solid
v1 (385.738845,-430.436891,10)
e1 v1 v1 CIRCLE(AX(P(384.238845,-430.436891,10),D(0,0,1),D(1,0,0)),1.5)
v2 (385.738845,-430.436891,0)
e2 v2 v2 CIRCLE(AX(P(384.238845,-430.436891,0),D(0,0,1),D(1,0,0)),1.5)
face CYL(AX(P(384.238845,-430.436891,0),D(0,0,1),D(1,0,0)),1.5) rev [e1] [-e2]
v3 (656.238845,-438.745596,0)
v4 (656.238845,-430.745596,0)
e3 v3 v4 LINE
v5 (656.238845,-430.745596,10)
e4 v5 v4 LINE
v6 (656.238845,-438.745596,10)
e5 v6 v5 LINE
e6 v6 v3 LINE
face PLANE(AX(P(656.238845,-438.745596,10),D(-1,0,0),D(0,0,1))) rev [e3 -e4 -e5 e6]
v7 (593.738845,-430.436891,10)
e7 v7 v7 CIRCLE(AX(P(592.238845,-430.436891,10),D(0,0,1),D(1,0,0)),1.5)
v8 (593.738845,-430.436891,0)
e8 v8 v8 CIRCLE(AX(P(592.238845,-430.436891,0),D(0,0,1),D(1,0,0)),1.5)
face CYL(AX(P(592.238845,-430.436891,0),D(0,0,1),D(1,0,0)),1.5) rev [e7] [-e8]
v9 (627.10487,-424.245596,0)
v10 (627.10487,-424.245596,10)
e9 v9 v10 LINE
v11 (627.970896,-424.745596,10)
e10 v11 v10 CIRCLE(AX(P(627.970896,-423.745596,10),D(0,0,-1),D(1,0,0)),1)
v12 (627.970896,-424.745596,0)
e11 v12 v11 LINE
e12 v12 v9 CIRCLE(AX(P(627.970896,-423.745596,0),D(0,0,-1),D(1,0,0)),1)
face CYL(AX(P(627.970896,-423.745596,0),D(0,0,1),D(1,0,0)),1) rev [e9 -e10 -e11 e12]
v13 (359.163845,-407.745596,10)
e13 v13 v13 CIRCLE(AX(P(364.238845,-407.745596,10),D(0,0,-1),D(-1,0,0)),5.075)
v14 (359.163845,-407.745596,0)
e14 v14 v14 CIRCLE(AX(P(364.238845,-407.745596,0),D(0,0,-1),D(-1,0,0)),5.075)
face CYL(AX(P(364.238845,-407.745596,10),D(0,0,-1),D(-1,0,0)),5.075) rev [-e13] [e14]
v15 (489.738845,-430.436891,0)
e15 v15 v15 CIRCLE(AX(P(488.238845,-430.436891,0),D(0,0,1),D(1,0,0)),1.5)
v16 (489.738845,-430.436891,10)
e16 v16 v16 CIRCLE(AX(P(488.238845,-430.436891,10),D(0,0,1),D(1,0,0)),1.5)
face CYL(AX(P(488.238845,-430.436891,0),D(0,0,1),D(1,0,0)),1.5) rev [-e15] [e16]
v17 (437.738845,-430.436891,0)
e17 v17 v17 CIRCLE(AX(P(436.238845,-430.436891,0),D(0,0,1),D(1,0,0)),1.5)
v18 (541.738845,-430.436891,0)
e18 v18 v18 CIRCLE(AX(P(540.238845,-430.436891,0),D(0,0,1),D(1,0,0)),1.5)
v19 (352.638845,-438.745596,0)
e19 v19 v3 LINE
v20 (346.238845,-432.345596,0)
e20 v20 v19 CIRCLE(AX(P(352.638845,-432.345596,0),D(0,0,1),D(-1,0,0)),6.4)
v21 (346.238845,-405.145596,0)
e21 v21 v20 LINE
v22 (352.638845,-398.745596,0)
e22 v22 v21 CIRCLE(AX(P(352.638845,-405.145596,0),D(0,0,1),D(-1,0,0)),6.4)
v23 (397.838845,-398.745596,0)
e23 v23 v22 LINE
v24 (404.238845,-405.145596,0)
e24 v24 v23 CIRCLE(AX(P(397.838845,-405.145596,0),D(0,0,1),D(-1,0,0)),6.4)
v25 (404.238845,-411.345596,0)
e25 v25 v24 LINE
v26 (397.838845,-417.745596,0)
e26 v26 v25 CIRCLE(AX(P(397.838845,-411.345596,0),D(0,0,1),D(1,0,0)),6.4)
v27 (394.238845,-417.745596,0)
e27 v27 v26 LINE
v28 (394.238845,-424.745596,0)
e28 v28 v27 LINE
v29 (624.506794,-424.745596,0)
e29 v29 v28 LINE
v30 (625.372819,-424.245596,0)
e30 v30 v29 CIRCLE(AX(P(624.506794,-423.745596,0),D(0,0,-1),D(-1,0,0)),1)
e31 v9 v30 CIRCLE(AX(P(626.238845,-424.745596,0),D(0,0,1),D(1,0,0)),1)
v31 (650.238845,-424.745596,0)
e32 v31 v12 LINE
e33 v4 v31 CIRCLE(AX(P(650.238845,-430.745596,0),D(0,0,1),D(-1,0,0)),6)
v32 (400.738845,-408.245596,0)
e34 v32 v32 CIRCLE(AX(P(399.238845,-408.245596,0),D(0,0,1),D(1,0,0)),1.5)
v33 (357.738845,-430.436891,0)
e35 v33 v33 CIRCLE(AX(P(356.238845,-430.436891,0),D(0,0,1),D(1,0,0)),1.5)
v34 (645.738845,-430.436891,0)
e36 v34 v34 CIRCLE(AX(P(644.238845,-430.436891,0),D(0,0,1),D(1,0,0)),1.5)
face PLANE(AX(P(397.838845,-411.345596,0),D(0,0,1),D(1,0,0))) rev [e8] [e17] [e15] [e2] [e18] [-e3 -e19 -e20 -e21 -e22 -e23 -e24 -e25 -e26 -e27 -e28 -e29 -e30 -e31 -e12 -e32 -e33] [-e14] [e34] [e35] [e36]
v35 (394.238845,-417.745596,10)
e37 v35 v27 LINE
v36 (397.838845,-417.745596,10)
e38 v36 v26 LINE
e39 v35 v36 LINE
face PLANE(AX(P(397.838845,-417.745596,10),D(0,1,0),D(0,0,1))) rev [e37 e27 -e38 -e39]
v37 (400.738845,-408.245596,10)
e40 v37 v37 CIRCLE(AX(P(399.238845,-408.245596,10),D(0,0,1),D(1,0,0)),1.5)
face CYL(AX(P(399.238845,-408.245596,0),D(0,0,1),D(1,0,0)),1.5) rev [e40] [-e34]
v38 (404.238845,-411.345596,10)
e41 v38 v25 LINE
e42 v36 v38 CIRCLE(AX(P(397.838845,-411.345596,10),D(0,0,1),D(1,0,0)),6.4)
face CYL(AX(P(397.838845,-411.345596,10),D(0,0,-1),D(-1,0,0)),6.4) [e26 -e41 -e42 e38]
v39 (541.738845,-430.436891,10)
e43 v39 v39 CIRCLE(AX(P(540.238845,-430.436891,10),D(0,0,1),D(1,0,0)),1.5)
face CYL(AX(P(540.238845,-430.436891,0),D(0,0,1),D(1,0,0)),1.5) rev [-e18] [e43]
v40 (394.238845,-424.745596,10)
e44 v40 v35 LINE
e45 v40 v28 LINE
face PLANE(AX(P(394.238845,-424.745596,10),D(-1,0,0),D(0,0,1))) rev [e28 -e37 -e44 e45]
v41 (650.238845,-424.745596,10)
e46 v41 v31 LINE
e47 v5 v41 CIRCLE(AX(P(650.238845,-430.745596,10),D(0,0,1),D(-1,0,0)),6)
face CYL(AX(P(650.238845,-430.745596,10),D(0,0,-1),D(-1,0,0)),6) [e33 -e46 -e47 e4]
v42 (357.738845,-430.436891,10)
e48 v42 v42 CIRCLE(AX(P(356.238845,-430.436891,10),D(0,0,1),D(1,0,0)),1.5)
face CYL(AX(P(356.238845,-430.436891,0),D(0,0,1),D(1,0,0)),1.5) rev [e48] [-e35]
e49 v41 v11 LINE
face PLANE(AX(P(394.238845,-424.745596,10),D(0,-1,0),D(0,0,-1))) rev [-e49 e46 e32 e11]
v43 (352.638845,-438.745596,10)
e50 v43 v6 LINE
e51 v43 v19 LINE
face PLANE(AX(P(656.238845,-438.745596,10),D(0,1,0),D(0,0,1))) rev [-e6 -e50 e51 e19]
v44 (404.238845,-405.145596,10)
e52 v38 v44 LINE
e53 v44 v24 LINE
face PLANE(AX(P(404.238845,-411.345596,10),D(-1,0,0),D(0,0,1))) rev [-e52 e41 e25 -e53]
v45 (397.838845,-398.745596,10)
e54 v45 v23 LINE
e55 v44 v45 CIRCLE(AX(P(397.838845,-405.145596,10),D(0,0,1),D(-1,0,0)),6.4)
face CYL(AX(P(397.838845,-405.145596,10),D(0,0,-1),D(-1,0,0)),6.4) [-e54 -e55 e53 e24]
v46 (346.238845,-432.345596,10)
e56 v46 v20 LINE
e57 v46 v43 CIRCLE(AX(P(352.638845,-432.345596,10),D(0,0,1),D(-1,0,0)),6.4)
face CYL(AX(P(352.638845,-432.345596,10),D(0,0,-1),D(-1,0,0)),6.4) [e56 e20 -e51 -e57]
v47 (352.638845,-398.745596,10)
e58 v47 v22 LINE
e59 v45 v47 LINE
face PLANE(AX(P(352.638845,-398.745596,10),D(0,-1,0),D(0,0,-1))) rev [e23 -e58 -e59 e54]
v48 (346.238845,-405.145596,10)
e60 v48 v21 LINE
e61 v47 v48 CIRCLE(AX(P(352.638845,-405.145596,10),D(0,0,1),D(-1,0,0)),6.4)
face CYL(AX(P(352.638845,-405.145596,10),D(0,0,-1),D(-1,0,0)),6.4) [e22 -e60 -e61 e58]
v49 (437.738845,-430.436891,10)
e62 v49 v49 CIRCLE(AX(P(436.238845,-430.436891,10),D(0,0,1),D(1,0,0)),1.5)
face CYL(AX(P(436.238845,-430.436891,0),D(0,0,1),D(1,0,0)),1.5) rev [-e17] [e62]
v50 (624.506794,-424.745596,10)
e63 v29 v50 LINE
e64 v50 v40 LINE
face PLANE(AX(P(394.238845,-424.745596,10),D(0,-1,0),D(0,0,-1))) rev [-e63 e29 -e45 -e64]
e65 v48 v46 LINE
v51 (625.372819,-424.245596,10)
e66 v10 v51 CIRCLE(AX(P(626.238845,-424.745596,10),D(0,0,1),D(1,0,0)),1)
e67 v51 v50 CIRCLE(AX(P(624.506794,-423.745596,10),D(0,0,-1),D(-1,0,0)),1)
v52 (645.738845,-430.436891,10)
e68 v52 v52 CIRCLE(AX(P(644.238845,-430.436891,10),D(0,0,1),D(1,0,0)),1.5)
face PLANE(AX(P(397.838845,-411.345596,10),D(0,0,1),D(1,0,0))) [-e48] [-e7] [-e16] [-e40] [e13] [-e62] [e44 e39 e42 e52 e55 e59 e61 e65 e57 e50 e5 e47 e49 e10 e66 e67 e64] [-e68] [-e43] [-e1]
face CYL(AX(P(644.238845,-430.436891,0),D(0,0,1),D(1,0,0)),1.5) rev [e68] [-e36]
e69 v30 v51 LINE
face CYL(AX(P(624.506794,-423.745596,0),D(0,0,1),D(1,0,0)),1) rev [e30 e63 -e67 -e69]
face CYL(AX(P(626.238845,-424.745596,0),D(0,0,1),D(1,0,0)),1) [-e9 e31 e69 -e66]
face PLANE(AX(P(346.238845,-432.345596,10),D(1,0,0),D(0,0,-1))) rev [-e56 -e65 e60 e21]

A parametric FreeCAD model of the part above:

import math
import FreeCAD as App
import Part
import Sketcher
Q = App.Units.Quantity

doc = App.newDocument("Part")
body = doc.addObject("PartDesign::Body", "Body")

# Sketch on XY plane
sketch1 = doc.addObject("Sketcher::SketchObject", "Sketch")
body.addObject(sketch1)
sketch1.AttachmentSupport = (doc.XY_Plane, [""])
sketch1.MapMode = "FlatFace"
sketch1.addGeometry([
    Part.LineSegment(App.Vector(352.6, -438.7, 0), App.Vector(656.2, -438.7, 0)),  # 0
    Part.LineSegment(App.Vector(656.2, -438.7, 0), App.Vector(656.2, -424.7, 0)),  # 1
    Part.LineSegment(App.Vector(656.2, -424.7, 0), App.Vector(394.2, -424.7, 0)),  # 2
    Part.LineSegment(App.Vector(394.2, -424.7, 0), App.Vector(394.2, -417.7, 0)),  # 3
    Part.LineSegment(App.Vector(394.2, -417.7, 0), App.Vector(397.8, -417.7, 0)),  # 4
    Part.ArcOfCircle(Part.Circle(App.Vector(397.8, -411.3, 0), App.Vector(0, 0, 1), 6.4), math.radians(-90), math.radians(0)),  # 5
    Part.LineSegment(App.Vector(404.2, -411.3, 0), App.Vector(404.2, -405.1, 0)),  # 6
    Part.ArcOfCircle(Part.Circle(App.Vector(397.8, -405.1, 0), App.Vector(0, 0, 1), 6.4), math.radians(0), math.radians(90)),  # 7
    Part.LineSegment(App.Vector(397.8, -398.7, 0), App.Vector(352.6, -398.7, 0)),  # 8
    Part.ArcOfCircle(Part.Circle(App.Vector(352.6, -405.1, 0), App.Vector(0, 0, 1), 6.4), math.radians(90), math.radians(180)),  # 9
    Part.LineSegment(App.Vector(346.2, -405.1, 0), App.Vector(346.2, -432.3, 0)),  # 10
    Part.ArcOfCircle(Part.Circle(App.Vector(352.6, -432.3, 0), App.Vector(0, 0, 1), 6.4), math.radians(180), math.radians(270)),  # 11
], False)
sketch1.addConstraint([
    Sketcher.Constraint("Coincident", 0, 2, 1, 1),
    Sketcher.Constraint("Coincident", 1, 2, 2, 1),
    Sketcher.Constraint("Coincident", 2, 2, 3, 1),
    Sketcher.Constraint("Coincident", 3, 2, 4, 1),
    Sketcher.Constraint("Tangent", 4, 2, 5, 1),
    Sketcher.Constraint("Tangent", 5, 2, 6, 1),
    Sketcher.Constraint("Tangent", 6, 2, 7, 1),
    Sketcher.Constraint("Tangent", 7, 2, 8, 1),
    Sketcher.Constraint("Tangent", 8, 2, 9, 1),
    Sketcher.Constraint("Tangent", 9, 2, 10, 1),
    Sketcher.Constraint("Tangent", 10, 2, 11, 1),
    Sketcher.Constraint("Tangent", 11, 2, 0, 1),
    Sketcher.Constraint("Horizontal", 0),
    Sketcher.Constraint("Vertical", 1),
    Sketcher.Constraint("Horizontal", 2),
    Sketcher.Constraint("Vertical", 3),
    Sketcher.Constraint("Horizontal", 4),
    Sketcher.Constraint("Vertical", 6),
    Sketcher.Constraint("Horizontal", 8),
    Sketcher.Constraint("Vertical", 10),
    Sketcher.Constraint("Equal", 5, 7),
    Sketcher.Constraint("Equal", 7, 9),
    Sketcher.Constraint("Equal", 9, 11),
    Sketcher.Constraint("Radius", 5, Q("6.4 mm")),
    Sketcher.Constraint("DistanceX", 2, 2, 2, 1, Q("262 mm")),
    Sketcher.Constraint("DistanceY", 1, 1, 1, 2, Q("14 mm")),
    Sketcher.Constraint("DistanceY", 3, 1, 3, 2, Q("7 mm")),
    Sketcher.Constraint("DistanceX", 0, 1, 0, 2, Q("303.6 mm")),
    Sketcher.Constraint("DistanceX", 4, 1, 4, 2, Q("3.6 mm")),
    Sketcher.Constraint("DistanceY", 6, 1, 6, 2, Q("6.2 mm")),
    Sketcher.Constraint("DistanceX", -1, 1, 5, 3, Q("397.838845 mm")),
    Sketcher.Constraint("DistanceY", 5, 3, -1, 1, Q("411.345596 mm")),
])
pad1 = doc.addObject("PartDesign::Pad", "Pad")
body.addObject(pad1)
pad1.Profile = sketch1
pad1.Length = 10

# Sketch on XY plane
sketch2 = doc.addObject("Sketcher::SketchObject", "Sketch001")
body.addObject(sketch2)
sketch2.AttachmentSupport = (doc.XY_Plane, [""])
sketch2.MapMode = "FlatFace"
sketch2.AttachmentOffset = App.Placement(App.Vector(0, 0, 10), App.Rotation())
sketch2.addGeometry([
    Part.Circle(App.Vector(644.2, -430.4, 0), App.Vector(0, 0, 1), 1.5),  # 0
    Part.Circle(App.Vector(592.2, -430.4, 0), App.Vector(0, 0, 1), 1.5),  # 1
    Part.Circle(App.Vector(540.2, -430.4, 0), App.Vector(0, 0, 1), 1.5),  # 2
    Part.Circle(App.Vector(488.2, -430.4, 0), App.Vector(0, 0, 1), 1.5),  # 3
    Part.Circle(App.Vector(436.2, -430.4, 0), App.Vector(0, 0, 1), 1.5),  # 4
    Part.Circle(App.Vector(384.2, -430.4, 0), App.Vector(0, 0, 1), 1.5),  # 5
    Part.Circle(App.Vector(356.2, -430.4, 0), App.Vector(0, 0, 1), 1.5),  # 6
    Part.Circle(App.Vector(399.2, -408.2, 0), App.Vector(0, 0, 1), 1.5),  # 7
], False)
sketch2.addConstraint([
    Sketcher.Constraint("Equal", 0, 1),
    Sketcher.Constraint("Equal", 1, 2),
    Sketcher.Constraint("Equal", 2, 3),
    Sketcher.Constraint("Equal", 3, 4),
    Sketcher.Constraint("Equal", 4, 5),
    Sketcher.Constraint("Equal", 5, 6),
    Sketcher.Constraint("Equal", 6, 7),
    Sketcher.Constraint("Horizontal", 0, 3, 1, 3),
    Sketcher.Constraint("Horizontal", 1, 3, 2, 3),
    Sketcher.Constraint("Horizontal", 2, 3, 3, 3),
    Sketcher.Constraint("Horizontal", 3, 3, 4, 3),
    Sketcher.Constraint("Horizontal", 4, 3, 5, 3),
    Sketcher.Constraint("Horizontal", 5, 3, 6, 3),
    Sketcher.Constraint("Diameter", 0, Q("3 mm")),
    Sketcher.Constraint("DistanceX", 1, 3, 0, 3, Q("52 mm")),
    Sketcher.Constraint("DistanceX", 2, 3, 1, 3, Q("52 mm")),
    Sketcher.Constraint("DistanceX", 3, 3, 2, 3, Q("52 mm")),
    Sketcher.Constraint("DistanceX", 4, 3, 3, 3, Q("52 mm")),
    Sketcher.Constraint("DistanceX", 5, 3, 4, 3, Q("52 mm")),
    Sketcher.Constraint("DistanceX", 6, 3, 5, 3, Q("28 mm")),
    Sketcher.Constraint("DistanceX", 5, 3, 7, 3, Q("15 mm")),
    Sketcher.Constraint("DistanceY", 0, 3, -1, 1, Q("430.436891 mm")),
    Sketcher.Constraint("DistanceX", -1, 1, 0, 3, Q("644.238845 mm")),
    Sketcher.Constraint("DistanceY", 7, 3, -1, 1, Q("408.245596 mm")),
])
pocket1 = doc.addObject("PartDesign::Pocket", "Pocket")
body.addObject(pocket1)
pocket1.Profile = sketch2
pocket1.Length = 10

# Sketch on XY plane
sketch3 = doc.addObject("Sketcher::SketchObject", "Sketch002")
body.addObject(sketch3)
sketch3.AttachmentSupport = (doc.XY_Plane, [""])
sketch3.MapMode = "FlatFace"
sketch3.addGeometry(Part.Circle(App.Vector(364, -408, 0), App.Vector(0, 0, 1), 5), False)
sketch3.addConstraint([
    Sketcher.Constraint("Diameter", 0, Q("10.15 mm")),
    Sketcher.Constraint("DistanceX", -1, 1, 0, 3, Q("364.238845 mm")),
    Sketcher.Constraint("DistanceY", 0, 3, -1, 1, Q("407.745596 mm")),
])
pocket2 = doc.addObject("PartDesign::Pocket", "Pocket001")
body.addObject(pocket2)
pocket2.Profile = sketch3
pocket2.Length = 10
pocket2.Reversed = True

# Sketch on XY plane
sketch4 = doc.addObject("Sketcher::SketchObject", "Sketch003")
body.addObject(sketch4)
sketch4.AttachmentSupport = (doc.XY_Plane, [""])
sketch4.MapMode = "FlatFace"
sketch4.addGeometry([
    Part.LineSegment(App.Vector(656, -425, 0), App.Vector(656, -431, 0)),
    Part.ArcOfCircle(Part.Circle(App.Vector(650, -431, 0), App.Vector(0, 0, 1), 6), math.radians(0), math.radians(90)),
    Part.LineSegment(App.Vector(650, -425, 0), App.Vector(656, -425, 0)),
], False)
sketch4.addConstraint([
    Sketcher.Constraint("Tangent", 0, 2, 1, 1),
    Sketcher.Constraint("Tangent", 1, 2, 2, 1),
    Sketcher.Constraint("Coincident", 2, 2, 0, 1),
    Sketcher.Constraint("Vertical", 0),
    Sketcher.Constraint("Horizontal", 2),
    Sketcher.Constraint("Radius", 1, Q("6 mm")),
    Sketcher.Constraint("DistanceX", -1, 1, 1, 3, Q("650.238845 mm")),
    Sketcher.Constraint("DistanceY", 1, 3, -1, 1, Q("430.745596 mm")),
])
pocket3 = doc.addObject("PartDesign::Pocket", "Pocket002")
body.addObject(pocket3)
pocket3.Profile = sketch4
pocket3.Length = 10
pocket3.Reversed = True

# Sketch on XY plane
sketch5 = doc.addObject("Sketcher::SketchObject", "Sketch004")
body.addObject(sketch5)
sketch5.AttachmentSupport = (doc.XY_Plane, [""])
sketch5.MapMode = "FlatFace"
sketch5.AttachmentOffset = App.Placement(App.Vector(0, 0, 10), App.Rotation())
sketch5.addGeometry([
    Part.LineSegment(App.Vector(624.5, -424.7, 0), App.Vector(628, -424.7, 0)),
    Part.ArcOfCircle(Part.Circle(App.Vector(628, -423.7, 0), App.Vector(0, 0, 1), 1), math.radians(-150), math.radians(-90)),
    Part.ArcOfCircle(Part.Circle(App.Vector(626.2, -424.7, 0), App.Vector(0, 0, 1), 1), math.radians(30), math.radians(150)),
    Part.ArcOfCircle(Part.Circle(App.Vector(624.5, -423.7, 0), App.Vector(0, 0, 1), 1), math.radians(-90), math.radians(-30)),
], False)
sketch5.addConstraint([
    Sketcher.Constraint("Tangent", 0, 2, 1, 2),
    Sketcher.Constraint("Tangent", 1, 1, 2, 1),
    Sketcher.Constraint("Tangent", 2, 2, 3, 2),
    Sketcher.Constraint("Tangent", 3, 1, 0, 1),
    Sketcher.Constraint("Horizontal", 0),
    Sketcher.Constraint("Equal", 1, 2),
    Sketcher.Constraint("Equal", 2, 3),
    Sketcher.Constraint("Horizontal", 2, 3, 0, 2),
    Sketcher.Constraint("Radius", 1, Q("1 mm")),
    Sketcher.Constraint("DistanceX", -1, 1, 1, 1, Q("627.10487 mm")),
    Sketcher.Constraint("DistanceY", 1, 3, -1, 1, Q("423.745596 mm")),
])
pad2 = doc.addObject("PartDesign::Pad", "Pad001")
body.addObject(pad2)
pad2.Profile = sketch5
pad2.Length = 10
pad2.Reversed = True

doc.recompute()
